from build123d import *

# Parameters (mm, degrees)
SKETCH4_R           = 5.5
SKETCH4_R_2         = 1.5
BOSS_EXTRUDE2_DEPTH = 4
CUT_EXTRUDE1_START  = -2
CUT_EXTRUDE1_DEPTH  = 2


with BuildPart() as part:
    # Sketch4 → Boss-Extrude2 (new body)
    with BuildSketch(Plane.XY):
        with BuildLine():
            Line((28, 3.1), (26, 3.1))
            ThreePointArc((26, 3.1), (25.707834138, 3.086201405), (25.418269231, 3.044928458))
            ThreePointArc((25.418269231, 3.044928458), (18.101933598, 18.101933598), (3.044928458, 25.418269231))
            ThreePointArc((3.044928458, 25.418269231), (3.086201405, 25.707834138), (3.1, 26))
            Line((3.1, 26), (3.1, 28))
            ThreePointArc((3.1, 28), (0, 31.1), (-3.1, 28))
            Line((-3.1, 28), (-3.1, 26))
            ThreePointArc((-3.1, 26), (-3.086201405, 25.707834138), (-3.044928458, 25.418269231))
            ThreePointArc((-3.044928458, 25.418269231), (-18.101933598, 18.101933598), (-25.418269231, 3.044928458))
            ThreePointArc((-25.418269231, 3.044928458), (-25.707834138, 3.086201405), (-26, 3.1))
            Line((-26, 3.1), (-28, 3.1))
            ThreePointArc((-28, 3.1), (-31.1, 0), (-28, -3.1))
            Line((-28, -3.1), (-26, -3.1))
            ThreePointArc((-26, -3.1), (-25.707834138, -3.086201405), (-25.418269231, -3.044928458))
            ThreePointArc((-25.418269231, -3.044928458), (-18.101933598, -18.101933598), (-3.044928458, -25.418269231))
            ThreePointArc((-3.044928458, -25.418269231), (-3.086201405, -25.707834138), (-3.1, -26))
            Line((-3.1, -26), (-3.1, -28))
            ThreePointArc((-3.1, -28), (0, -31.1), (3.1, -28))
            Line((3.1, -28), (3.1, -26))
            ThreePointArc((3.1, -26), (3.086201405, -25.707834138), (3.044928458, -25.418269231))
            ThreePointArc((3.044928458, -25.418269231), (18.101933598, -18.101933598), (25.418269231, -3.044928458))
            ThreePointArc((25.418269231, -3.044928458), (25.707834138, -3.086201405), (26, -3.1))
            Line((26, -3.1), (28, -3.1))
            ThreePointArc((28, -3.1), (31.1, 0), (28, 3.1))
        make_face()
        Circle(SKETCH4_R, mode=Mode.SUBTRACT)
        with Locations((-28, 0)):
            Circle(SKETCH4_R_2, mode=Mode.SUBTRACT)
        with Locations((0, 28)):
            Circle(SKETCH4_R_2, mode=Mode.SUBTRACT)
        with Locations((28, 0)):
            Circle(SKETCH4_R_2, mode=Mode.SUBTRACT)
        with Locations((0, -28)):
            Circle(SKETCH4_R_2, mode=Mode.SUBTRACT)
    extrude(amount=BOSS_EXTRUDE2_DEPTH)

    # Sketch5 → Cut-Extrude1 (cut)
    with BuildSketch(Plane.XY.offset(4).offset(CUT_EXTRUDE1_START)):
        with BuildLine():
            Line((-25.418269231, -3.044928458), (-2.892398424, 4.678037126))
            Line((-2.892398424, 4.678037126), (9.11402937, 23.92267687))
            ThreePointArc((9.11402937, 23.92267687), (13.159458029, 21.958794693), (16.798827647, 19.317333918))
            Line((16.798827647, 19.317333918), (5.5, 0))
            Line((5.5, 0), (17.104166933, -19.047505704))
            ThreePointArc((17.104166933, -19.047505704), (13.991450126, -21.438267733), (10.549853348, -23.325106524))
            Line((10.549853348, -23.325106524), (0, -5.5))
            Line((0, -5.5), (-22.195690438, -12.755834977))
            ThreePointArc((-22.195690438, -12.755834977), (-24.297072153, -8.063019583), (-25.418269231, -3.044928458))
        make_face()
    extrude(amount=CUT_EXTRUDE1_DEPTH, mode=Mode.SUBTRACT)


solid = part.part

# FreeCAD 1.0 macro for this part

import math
import FreeCAD as App
import Part
import Sketcher
from FreeCAD import Vector

doc = App.newDocument("Part")
body = doc.addObject("PartDesign::Body", "Body")

# Sketch on XY plane
sketch1 = body.newObject("Sketcher::SketchObject", "Sketch")
sketch1.AttachmentSupport = (doc.getObject("XY_Plane"), [""])
sketch1.MapMode = "FlatFace"
sketch1.addGeometry([
    Part.LineSegment(Vector(28, 3.1, 0), Vector(26, 3.1, 0)),  # 0
    Part.ArcOfCircle(Part.Circle(Vector(26, 0, 0), Vector(0, 0, 1), 3.1), math.radians(90), math.radians(100.82)),  # 1
    Part.ArcOfCircle(Part.Circle(Vector(0, 0, 0), Vector(0, 0, 1), 25.6), math.radians(7), math.radians(83)),  # 2
    Part.ArcOfCircle(Part.Circle(Vector(0, 26, 0), Vector(0, 0, 1), 3.1), math.radians(-10.82), math.radians(0)),  # 3
    Part.LineSegment(Vector(3.1, 26, 0), Vector(3.1, 28, 0)),  # 4
    Part.ArcOfCircle(Part.Circle(Vector(0, 28, 0), Vector(0, 0, 1), 3.1), math.radians(0), math.radians(180)),  # 5
    Part.LineSegment(Vector(-3.1, 28, 0), Vector(-3.1, 26, 0)),  # 6
    Part.ArcOfCircle(Part.Circle(Vector(0, 26, 0), Vector(0, 0, 1), 3.1), math.radians(180), math.radians(190.82)),  # 7
    Part.ArcOfCircle(Part.Circle(Vector(0, 0, 0), Vector(0, 0, 1), 25.6), math.radians(97), math.radians(173)),  # 8
    Part.ArcOfCircle(Part.Circle(Vector(-26, 0, 0), Vector(0, 0, 1), 3.1), math.radians(79.18), math.radians(90)),  # 9
    Part.LineSegment(Vector(-26, 3.1, 0), Vector(-28, 3.1, 0)),  # 10
    Part.ArcOfCircle(Part.Circle(Vector(-28, 0, 0), Vector(0, 0, 1), 3.1), math.radians(90), math.radians(270)),  # 11
    Part.LineSegment(Vector(-28, -3.1, 0), Vector(-26, -3.1, 0)),  # 12
    Part.ArcOfCircle(Part.Circle(Vector(-26, 0, 0), Vector(0, 0, 1), 3.1), math.radians(-90), math.radians(-79.18)),  # 13
    Part.ArcOfCircle(Part.Circle(Vector(0, 0, 0), Vector(0, 0, 1), 25.6), math.radians(-173), math.radians(-97)),  # 14
    Part.ArcOfCircle(Part.Circle(Vector(0, -26, 0), Vector(0, 0, 1), 3.1), math.radians(169.18), math.radians(180)),  # 15
    Part.LineSegment(Vector(-3.1, -26, 0), Vector(-3.1, -28, 0)),  # 16
    Part.ArcOfCircle(Part.Circle(Vector(0, -28, 0), Vector(0, 0, 1), 3.1), math.radians(180), math.radians(360)),  # 17
    Part.LineSegment(Vector(3.1, -28, 0), Vector(3.1, -26, 0)),  # 18
    Part.ArcOfCircle(Part.Circle(Vector(0, -26, 0), Vector(0, 0, 1), 3.1), math.radians(0), math.radians(10.82)),  # 19
    Part.ArcOfCircle(Part.Circle(Vector(0, 0, 0), Vector(0, 0, 1), 25.6), math.radians(-83), math.radians(-7)),  # 20
    Part.ArcOfCircle(Part.Circle(Vector(26, 0, 0), Vector(0, 0, 1), 3.1), math.radians(-100.82), math.radians(-90)),  # 21
    Part.LineSegment(Vector(26, -3.1, 0), Vector(28, -3.1, 0)),  # 22
    Part.ArcOfCircle(Part.Circle(Vector(28, 0, 0), Vector(0, 0, 1), 3.1), math.radians(-90), math.radians(90)),  # 23
    Part.Circle(Vector(0, -28, 0), Vector(0, 0, 1), 1.5),  # 24
    Part.Circle(Vector(-28, 0, 0), Vector(0, 0, 1), 1.5),  # 25
    Part.Circle(Vector(0, 0, 0), Vector(0, 0, 1), 5.5),  # 26
    Part.Circle(Vector(28, 0, 0), Vector(0, 0, 1), 1.5),  # 27
    Part.Circle(Vector(0, 28, 0), Vector(0, 0, 1), 1.5),  # 28
], False)
sketch1.addConstraint([
    Sketcher.Constraint("Tangent", 0, 2, 1, 1),
    Sketcher.Constraint("Coincident", 1, 2, 2, 1),
    Sketcher.Constraint("Coincident", 2, 2, 3, 1),
    Sketcher.Constraint("Tangent", 3, 2, 4, 1),
    Sketcher.Constraint("Tangent", 4, 2, 5, 1),
    Sketcher.Constraint("Tangent", 5, 2, 6, 1),
    Sketcher.Constraint("Tangent", 6, 2, 7, 1),
    Sketcher.Constraint("Coincident", 7, 2, 8, 1),
    Sketcher.Constraint("Coincident", 8, 2, 9, 1),
    Sketcher.Constraint("Tangent", 9, 2, 10, 1),
    Sketcher.Constraint("Tangent", 10, 2, 11, 1),
    Sketcher.Constraint("Tangent", 11, 2, 12, 1),
    Sketcher.Constraint("Tangent", 12, 2, 13, 1),
    Sketcher.Constraint("Coincident", 13, 2, 14, 1),
    Sketcher.Constraint("Coincident", 14, 2, 15, 1),
    Sketcher.Constraint("Tangent", 15, 2, 16, 1),
    Sketcher.Constraint("Tangent", 16, 2, 17, 1),
    Sketcher.Constraint("Tangent", 17, 2, 18, 1),
    Sketcher.Constraint("Tangent", 18, 2, 19, 1),
    Sketcher.Constraint("Coincident", 19, 2, 20, 1),
    Sketcher.Constraint("Coincident", 20, 2, 21, 1),
    Sketcher.Constraint("Tangent", 21, 2, 22, 1),
    Sketcher.Constraint("Tangent", 22, 2, 23, 1),
    Sketcher.Constraint("Tangent", 23, 2, 0, 1),
    Sketcher.Constraint("Horizontal", 0),
    Sketcher.Constraint("Vertical", 4),
    Sketcher.Constraint("Vertical", 6),
    Sketcher.Constraint("Horizontal", 10),
    Sketcher.Constraint("Horizontal", 12),
    Sketcher.Constraint("Vertical", 16),
    Sketcher.Constraint("Vertical", 18),
    Sketcher.Constraint("Horizontal", 22),
    Sketcher.Constraint("Coincident", 2, 3, -1, 1),
    Sketcher.Constraint("Coincident", 8, 3, -1, 1),
    Sketcher.Constraint("Coincident", 14, 3, -1, 1),
    Sketcher.Constraint("Coincident", 20, 3, -1, 1),
    Sketcher.Constraint("Coincident", 26, 3, -1, 1),
    Sketcher.Constraint("Coincident", 7, 3, 3, 3),
    Sketcher.Constraint("Coincident", 13, 3, 9, 3),
    Sketcher.Constraint("Coincident", 19, 3, 15, 3),
    Sketcher.Constraint("Coincident", 21, 3, 1, 3),
    Sketcher.Constraint("Coincident", 24, 3, 17, 3),
    Sketcher.Constraint("Coincident", 25, 3, 11, 3),
    Sketcher.Constraint("Coincident", 27, 3, 23, 3),
    Sketcher.Constraint("Coincident", 28, 3, 5, 3),
    Sketcher.Constraint("Equal", 1, 3),
    Sketcher.Constraint("Equal", 3, 5),
    Sketcher.Constraint("Equal", 2, 8),
    Sketcher.Constraint("Equal", 7, 9),
    Sketcher.Constraint("Equal", 9, 11),
    Sketcher.Constraint("Equal", 8, 14),
    Sketcher.Constraint("Equal", 13, 15),
    Sketcher.Constraint("Equal", 15, 17),
    Sketcher.Constraint("Equal", 14, 20),
    Sketcher.Constraint("Equal", 19, 21),
    Sketcher.Constraint("Equal", 24, 25),
    Sketcher.Constraint("Equal", 25, 27),
    Sketcher.Constraint("Equal", 27, 28),
    Sketcher.Constraint("Symmetric", 1, 3, 9, 3, -1, 1),
    Sketcher.Constraint("Symmetric", 3, 3, 15, 3, -1, 1),
    Sketcher.Constraint("Symmetric", 11, 3, 23, 3, -2),
    Sketcher.Constraint("Symmetric", 5, 3, 17, 3, -1),
    Sketcher.Constraint("Equal", 22, 4),
    Sketcher.Constraint("Diameter", 24, 3.0),
    Sketcher.Constraint("Diameter", 26, 11.0),
    Sketcher.Constraint("Radius", 1, 3.1),
    Sketcher.Constraint("Radius", 2, 25.6),
    Sketcher.Constraint("DistanceX", 0, 2, 0, 1, 2.0),
    Sketcher.Constraint("DistanceX", -1, 1, 1, 3, 26.0),
    Sketcher.Constraint("DistanceY", -1, 1, 3, 3, 26.0),
])
pad1 = body.newObject("PartDesign::Pad", "Pad")
pad1.Profile = sketch1
pad1.Length = 4

# Sketch on XY plane
sketch2 = body.newObject("Sketcher::SketchObject", "Sketch001")
sketch2.AttachmentSupport = (doc.getObject("XY_Plane"), [""])
sketch2.MapMode = "FlatFace"
sketch2.AttachmentOffset = App.Placement(Vector(0, 0, 2), App.Rotation())
sketch2.addGeometry([
    Part.LineSegment(Vector(-3, 5, 0), Vector(-25, -3, 0)),  # 0
    Part.ArcOfCircle(Part.Circle(Vector(0, 0, 0), Vector(0, 0, 1), 26), math.radians(-173), math.radians(-150)),  # 1
    Part.LineSegment(Vector(-22, -13, 0), Vector(0, -6, 0)),  # 2
    Part.LineSegment(Vector(0, -6, 0), Vector(11, -23, 0)),  # 3
    Part.ArcOfCircle(Part.Circle(Vector(0, 0, 0), Vector(0, 0, 1), 26), math.radians(-65.66), math.radians(-48.08)),  # 4
    Part.LineSegment(Vector(17, -19, 0), Vector(6, 0, 0)),  # 5
    Part.LineSegment(Vector(6, 0, 0), Vector(17, 19, 0)),  # 6
    Part.ArcOfCircle(Part.Circle(Vector(0, 0, 0), Vector(0, 0, 1), 26), math.radians(49), math.radians(69)),  # 7
    Part.LineSegment(Vector(9, 24, 0), Vector(-3, 5, 0)),  # 8
], False)
sketch2.addConstraint([
    Sketcher.Constraint("Coincident", 0, 2, 1, 1),
    Sketcher.Constraint("Coincident", 1, 2, 2, 1),
    Sketcher.Constraint("Coincident", 2, 2, 3, 1),
    Sketcher.Constraint("Coincident", 3, 2, 4, 1),
    Sketcher.Constraint("Coincident", 4, 2, 5, 1),
    Sketcher.Constraint("Coincident", 5, 2, 6, 1),
    Sketcher.Constraint("Coincident", 6, 2, 7, 1),
    Sketcher.Constraint("Coincident", 7, 2, 8, 1),
    Sketcher.Constraint("Coincident", 8, 2, 0, 1),
    Sketcher.Constraint("Coincident", 1, 3, -1, 1),
    Sketcher.Constraint("Coincident", 4, 3, -1, 1),
    Sketcher.Constraint("Coincident", 7, 3, -1, 1),
    Sketcher.Constraint("Equal", 1, 4),
    Sketcher.Constraint("Equal", 4, 7),
    Sketcher.Constraint("PointOnObject", 2, 2, -2),
    Sketcher.Constraint("PointOnObject", 5, 2, -1),
    Sketcher.Constraint("Radius", 1, 25.6),
    Sketcher.Constraint("DistanceY", 2, 2, -1, 1, 5.5),
    Sketcher.Constraint("DistanceX", -1, 1, 5, 2, 5.5),
    Sketcher.Constraint("Distance", 0, 23.813002),
    Sketcher.Constraint("DistanceX", 8, 2, -1, 1, 2.892398),
    Sketcher.Constraint("DistanceY", 3, 2, 4, 2, 4.277601),
    Sketcher.Constraint("DistanceX", 7, 2, 6, 2, 7.684798),
    Sketcher.Constraint("Distance", 2, 23.35157),
    Sketcher.Constraint("Distance", 3, 20.713132),
    Sketcher.Constraint("DistanceX", 0, 2, -1, 1, 25.418269),
    Sketcher.Constraint("DistanceX", -1, 1, 7, 2, 9.114029),
])
pocket1 = body.newObject("PartDesign::Pocket", "Pocket")
pocket1.Profile = sketch2
pocket1.Length = 2
pocket1.Reversed = True

doc.recompute()
